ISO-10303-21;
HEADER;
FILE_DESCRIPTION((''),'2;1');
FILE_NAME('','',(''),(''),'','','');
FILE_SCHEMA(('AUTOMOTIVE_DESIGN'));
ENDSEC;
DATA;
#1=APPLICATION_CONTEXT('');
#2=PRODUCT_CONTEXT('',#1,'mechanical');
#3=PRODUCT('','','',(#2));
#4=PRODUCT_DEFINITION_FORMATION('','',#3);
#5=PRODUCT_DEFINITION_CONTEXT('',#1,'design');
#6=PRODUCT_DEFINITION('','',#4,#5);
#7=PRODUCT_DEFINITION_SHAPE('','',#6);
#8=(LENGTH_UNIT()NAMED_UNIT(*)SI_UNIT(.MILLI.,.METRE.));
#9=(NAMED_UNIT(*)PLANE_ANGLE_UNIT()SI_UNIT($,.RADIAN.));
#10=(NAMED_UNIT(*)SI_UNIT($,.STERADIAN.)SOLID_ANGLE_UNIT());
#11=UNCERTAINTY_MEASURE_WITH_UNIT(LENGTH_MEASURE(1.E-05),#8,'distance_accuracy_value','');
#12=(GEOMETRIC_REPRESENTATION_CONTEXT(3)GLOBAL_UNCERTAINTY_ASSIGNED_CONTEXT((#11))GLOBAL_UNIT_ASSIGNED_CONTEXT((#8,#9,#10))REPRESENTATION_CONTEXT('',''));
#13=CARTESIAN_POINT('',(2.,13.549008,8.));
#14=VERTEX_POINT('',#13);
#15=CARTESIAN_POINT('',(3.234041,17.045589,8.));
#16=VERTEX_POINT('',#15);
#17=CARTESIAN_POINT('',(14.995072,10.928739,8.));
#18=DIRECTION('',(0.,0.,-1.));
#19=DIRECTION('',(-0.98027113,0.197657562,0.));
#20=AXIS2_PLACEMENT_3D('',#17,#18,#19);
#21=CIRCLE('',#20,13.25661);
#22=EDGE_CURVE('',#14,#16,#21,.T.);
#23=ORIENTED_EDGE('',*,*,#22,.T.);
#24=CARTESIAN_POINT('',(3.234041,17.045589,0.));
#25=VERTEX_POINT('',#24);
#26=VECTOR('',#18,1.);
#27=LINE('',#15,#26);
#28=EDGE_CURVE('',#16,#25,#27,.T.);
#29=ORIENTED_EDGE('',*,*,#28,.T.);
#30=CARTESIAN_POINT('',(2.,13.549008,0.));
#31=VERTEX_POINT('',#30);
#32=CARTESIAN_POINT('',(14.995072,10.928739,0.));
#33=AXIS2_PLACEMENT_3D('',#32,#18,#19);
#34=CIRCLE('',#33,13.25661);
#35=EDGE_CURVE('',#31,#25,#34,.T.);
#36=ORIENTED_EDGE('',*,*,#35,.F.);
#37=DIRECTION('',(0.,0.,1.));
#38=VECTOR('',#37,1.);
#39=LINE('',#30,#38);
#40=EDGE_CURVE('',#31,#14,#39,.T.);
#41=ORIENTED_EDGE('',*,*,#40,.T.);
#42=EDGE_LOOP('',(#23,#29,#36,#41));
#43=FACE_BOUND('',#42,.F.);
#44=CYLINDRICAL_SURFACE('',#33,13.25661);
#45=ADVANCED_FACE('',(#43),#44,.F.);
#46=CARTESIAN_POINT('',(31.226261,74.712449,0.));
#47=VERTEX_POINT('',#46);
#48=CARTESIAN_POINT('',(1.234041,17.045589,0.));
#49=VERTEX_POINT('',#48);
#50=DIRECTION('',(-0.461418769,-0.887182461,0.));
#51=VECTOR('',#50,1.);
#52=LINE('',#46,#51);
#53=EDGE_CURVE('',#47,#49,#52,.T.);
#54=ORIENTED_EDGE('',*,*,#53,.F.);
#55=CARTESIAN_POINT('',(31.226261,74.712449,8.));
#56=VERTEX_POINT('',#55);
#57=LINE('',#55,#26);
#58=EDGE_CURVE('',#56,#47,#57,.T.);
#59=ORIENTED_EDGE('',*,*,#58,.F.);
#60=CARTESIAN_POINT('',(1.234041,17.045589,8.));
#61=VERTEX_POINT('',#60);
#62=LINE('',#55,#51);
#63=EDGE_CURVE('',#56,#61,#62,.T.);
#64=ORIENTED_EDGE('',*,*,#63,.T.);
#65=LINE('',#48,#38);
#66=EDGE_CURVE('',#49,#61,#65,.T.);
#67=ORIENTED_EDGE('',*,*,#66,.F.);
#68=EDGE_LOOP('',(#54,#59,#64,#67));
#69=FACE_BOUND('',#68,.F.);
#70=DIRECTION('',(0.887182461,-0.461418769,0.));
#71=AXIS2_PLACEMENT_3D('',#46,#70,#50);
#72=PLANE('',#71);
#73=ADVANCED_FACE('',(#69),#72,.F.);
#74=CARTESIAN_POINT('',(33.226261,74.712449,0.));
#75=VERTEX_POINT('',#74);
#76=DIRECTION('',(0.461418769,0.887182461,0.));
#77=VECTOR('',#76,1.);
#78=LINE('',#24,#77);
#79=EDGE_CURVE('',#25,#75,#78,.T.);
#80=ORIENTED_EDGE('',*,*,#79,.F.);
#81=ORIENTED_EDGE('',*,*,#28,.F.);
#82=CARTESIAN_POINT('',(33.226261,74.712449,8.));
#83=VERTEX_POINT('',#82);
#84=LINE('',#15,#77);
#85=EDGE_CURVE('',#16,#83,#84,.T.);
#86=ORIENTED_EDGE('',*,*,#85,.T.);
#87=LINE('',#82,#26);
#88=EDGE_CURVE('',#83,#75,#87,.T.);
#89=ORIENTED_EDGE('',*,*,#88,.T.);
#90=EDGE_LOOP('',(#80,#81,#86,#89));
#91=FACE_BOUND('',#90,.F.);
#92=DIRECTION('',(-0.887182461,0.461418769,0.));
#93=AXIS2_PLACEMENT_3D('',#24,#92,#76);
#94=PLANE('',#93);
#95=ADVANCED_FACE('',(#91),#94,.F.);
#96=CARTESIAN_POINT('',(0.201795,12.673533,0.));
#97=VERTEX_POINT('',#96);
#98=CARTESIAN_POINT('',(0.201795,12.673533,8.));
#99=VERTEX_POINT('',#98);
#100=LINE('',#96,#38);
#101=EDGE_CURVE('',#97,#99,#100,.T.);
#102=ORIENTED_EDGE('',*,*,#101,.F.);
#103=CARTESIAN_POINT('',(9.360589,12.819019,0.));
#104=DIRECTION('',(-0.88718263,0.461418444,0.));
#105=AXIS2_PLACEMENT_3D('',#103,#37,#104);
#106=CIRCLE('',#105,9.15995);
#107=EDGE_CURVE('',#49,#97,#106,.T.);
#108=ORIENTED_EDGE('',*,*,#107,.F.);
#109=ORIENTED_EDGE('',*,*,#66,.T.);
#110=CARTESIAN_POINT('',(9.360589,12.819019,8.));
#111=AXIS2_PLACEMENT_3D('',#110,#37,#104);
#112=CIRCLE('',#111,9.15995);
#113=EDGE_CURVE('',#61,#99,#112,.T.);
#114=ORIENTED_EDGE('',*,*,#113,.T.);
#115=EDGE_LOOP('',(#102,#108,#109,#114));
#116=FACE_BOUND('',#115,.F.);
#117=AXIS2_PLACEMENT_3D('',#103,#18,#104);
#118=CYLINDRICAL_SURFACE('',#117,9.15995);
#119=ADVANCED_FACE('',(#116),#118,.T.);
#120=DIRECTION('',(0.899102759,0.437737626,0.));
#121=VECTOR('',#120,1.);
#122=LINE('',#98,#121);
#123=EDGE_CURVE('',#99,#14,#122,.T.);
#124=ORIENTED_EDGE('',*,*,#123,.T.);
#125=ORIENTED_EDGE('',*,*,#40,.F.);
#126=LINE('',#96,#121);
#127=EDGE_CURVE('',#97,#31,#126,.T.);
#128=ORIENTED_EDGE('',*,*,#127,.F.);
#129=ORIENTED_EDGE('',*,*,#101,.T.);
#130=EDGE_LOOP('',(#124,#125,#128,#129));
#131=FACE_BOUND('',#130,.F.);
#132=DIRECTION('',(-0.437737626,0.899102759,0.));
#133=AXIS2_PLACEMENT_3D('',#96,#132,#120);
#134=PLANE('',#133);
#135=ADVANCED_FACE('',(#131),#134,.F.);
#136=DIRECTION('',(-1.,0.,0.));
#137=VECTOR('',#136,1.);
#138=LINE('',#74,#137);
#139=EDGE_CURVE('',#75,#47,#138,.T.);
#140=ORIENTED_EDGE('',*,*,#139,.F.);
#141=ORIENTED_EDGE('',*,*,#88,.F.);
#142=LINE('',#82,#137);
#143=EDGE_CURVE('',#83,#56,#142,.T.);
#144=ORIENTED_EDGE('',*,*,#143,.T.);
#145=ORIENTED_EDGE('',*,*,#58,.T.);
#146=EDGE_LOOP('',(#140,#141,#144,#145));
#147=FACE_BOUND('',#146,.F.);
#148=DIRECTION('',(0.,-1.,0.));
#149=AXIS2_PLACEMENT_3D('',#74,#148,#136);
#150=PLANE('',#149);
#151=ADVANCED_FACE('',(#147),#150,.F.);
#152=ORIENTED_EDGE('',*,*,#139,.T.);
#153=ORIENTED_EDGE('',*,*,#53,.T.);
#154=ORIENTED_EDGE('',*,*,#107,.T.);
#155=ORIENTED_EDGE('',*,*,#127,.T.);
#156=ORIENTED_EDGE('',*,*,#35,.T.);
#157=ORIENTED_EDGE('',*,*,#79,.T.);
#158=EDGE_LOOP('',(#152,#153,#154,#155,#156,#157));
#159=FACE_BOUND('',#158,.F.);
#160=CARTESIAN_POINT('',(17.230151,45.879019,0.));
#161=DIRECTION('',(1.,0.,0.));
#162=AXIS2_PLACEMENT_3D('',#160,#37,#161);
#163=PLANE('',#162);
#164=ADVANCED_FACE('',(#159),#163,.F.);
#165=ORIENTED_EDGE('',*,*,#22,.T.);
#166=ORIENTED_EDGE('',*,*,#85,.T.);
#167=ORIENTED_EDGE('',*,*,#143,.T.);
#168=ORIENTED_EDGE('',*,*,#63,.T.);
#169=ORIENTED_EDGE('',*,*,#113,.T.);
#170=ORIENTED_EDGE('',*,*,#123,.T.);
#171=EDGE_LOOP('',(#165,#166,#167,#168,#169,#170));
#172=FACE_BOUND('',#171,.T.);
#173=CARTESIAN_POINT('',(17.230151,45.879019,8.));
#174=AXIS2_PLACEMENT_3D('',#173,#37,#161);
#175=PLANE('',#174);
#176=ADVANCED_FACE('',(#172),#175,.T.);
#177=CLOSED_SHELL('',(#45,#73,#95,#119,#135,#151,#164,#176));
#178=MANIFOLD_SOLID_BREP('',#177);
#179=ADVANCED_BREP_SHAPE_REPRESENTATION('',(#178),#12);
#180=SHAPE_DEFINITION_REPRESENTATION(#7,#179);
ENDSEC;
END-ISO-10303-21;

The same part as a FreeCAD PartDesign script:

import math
import FreeCAD as App
import Part
import Sketcher
from FreeCAD import Vector
Q = App.Units.Quantity

doc = App.newDocument("Part")
body = doc.addObject("PartDesign::Body", "Body")

# Sketch on XY plane
sketch1 = body.newObject("Sketcher::SketchObject", "Sketch")
sketch1.AttachmentSupport = (doc.getObject("XY_Plane"), [""])
sketch1.MapMode = "FlatFace"
sketch1.addGeometry(Part.LineSegment(Vector(31.226261, 74.712449, 0), Vector(1.234041, 17.045589, 0)), False)
sketch1.addGeometry(Part.ArcOfCircle(Part.Circle(Vector(9.360589, 12.819019, 0), Vector(0, 0, 1), 9.15995), math.radians(152.521325), math.radians(180.910059)), False)
sketch1.addGeometry(Part.LineSegment(Vector(0.201795, 12.673533, 0), Vector(2, 13.549008, 0)), False)
sketch1.addGeometry(Part.ArcOfCircle(Part.Circle(Vector(14.995072, 10.928739, 0), Vector(0, 0, 1), 13.25661), math.radians(152.521296), math.radians(168.599987)), False)
sketch1.addGeometry(Part.LineSegment(Vector(3.234041, 17.045589, 0), Vector(33.226261, 74.712449, 0)), False)
sketch1.addGeometry(Part.LineSegment(Vector(33.226261, 74.712449, 0), Vector(31.226261, 74.712449, 0)), False)
sketch1.addConstraint(Sketcher.Constraint("Coincident", 0, 2, 1, 1))
sketch1.addConstraint(Sketcher.Constraint("Coincident", 1, 2, 2, 1))
sketch1.addConstraint(Sketcher.Constraint("Coincident", 2, 2, 3, 2))
sketch1.addConstraint(Sketcher.Constraint("Coincident", 3, 1, 4, 1))
sketch1.addConstraint(Sketcher.Constraint("Coincident", 4, 2, 5, 1))
sketch1.addConstraint(Sketcher.Constraint("Coincident", 5, 2, 0, 1))
sketch1.addConstraint(Sketcher.Constraint("Horizontal", 5))
sketch1.addConstraint(Sketcher.Constraint("DistanceX", 5, 2, 5, 1, Q("2 mm")))
sketch1.addConstraint(Sketcher.Constraint("Distance", 0, Q("65 mm")))
sketch1.addConstraint(Sketcher.Constraint("Distance", 2, Q("1.999999 mm")))
sketch1.addConstraint(Sketcher.Constraint("Distance", 4, Q("65 mm")))
sketch1.addConstraint(Sketcher.Constraint("DistanceX", -1, 1, 2, 2, Q("2 mm")))
sketch1.addConstraint(Sketcher.Constraint("DistanceX", 0, 2, 3, 1, Q("2 mm")))
sketch1.addConstraint(Sketcher.Constraint("Radius", 1, Q("9.15995 mm")))
sketch1.addConstraint(Sketcher.Constraint("Radius", 3, Q("13.25661 mm")))
sketch1.addConstraint(Sketcher.Constraint("DistanceX", -1, 1, 1, 3, Q("9.360589 mm")))
sketch1.addConstraint(Sketcher.Constraint("DistanceY", -1, 1, 1, 3, Q("12.819019 mm")))
sketch1.addConstraint(Sketcher.Constraint("DistanceX", -1, 1, 3, 3, Q("14.995072 mm")))
sketch1.addConstraint(Sketcher.Constraint("DistanceX", -1, 1, 0, 2, Q("1.234041 mm")))
sketch1.addConstraint(Sketcher.Constraint("DistanceX", -1, 1, 4, 2, Q("33.226261 mm")))
pad1 = body.newObject("PartDesign::Pad", "Pad")
pad1.Profile = sketch1
pad1.Length = 6

# Sketch on XY plane
sketch2 = body.newObject("Sketcher::SketchObject", "Sketch001")
sketch2.AttachmentSupport = (doc.getObject("XY_Plane"), [""])
sketch2.MapMode = "FlatFace"
sketch2.addGeometry(Part.LineSegment(Vector(31.226261, 74.712449, 0), Vector(1.234041, 17.045589, 0)), False)
sketch2.addGeometry(Part.ArcOfCircle(Part.Circle(Vector(9.360589, 12.819019, 0), Vector(0, 0, 1), 9.15995), math.radians(152.521325), math.radians(180.910059)), False)
sketch2.addGeometry(Part.LineSegment(Vector(0.201795, 12.673533, 0), Vector(2, 13.549008, 0)), False)
sketch2.addGeometry(Part.ArcOfCircle(Part.Circle(Vector(14.995072, 10.928739, 0), Vector(0, 0, 1), 13.25661), math.radians(152.521296), math.radians(168.599987)), False)
sketch2.addGeometry(Part.LineSegment(Vector(3.234041, 17.045589, 0), Vector(33.226261, 74.712449, 0)), False)
sketch2.addGeometry(Part.LineSegment(Vector(33.226261, 74.712449, 0), Vector(31.226261, 74.712449, 0)), False)
sketch2.addConstraint(Sketcher.Constraint("Coincident", 0, 2, 1, 1))
sketch2.addConstraint(Sketcher.Constraint("Coincident", 1, 2, 2, 1))
sketch2.addConstraint(Sketcher.Constraint("Coincident", 2, 2, 3, 2))
sketch2.addConstraint(Sketcher.Constraint("Coincident", 3, 1, 4, 1))
sketch2.addConstraint(Sketcher.Constraint("Coincident", 4, 2, 5, 1))
sketch2.addConstraint(Sketcher.Constraint("Coincident", 5, 2, 0, 1))
sketch2.addConstraint(Sketcher.Constraint("Horizontal", 5))
sketch2.addConstraint(Sketcher.Constraint("DistanceX", 5, 2, 5, 1, Q("2 mm")))
sketch2.addConstraint(Sketcher.Constraint("Distance", 0, Q("65 mm")))
sketch2.addConstraint(Sketcher.Constraint("Distance", 2, Q("1.999999 mm")))
sketch2.addConstraint(Sketcher.Constraint("Distance", 4, Q("65 mm")))
sketch2.addConstraint(Sketcher.Constraint("DistanceX", -1, 1, 2, 2, Q("2 mm")))
sketch2.addConstraint(Sketcher.Constraint("DistanceX", 0, 2, 3, 1, Q("2 mm")))
sketch2.addConstraint(Sketcher.Constraint("Radius", 1, Q("9.15995 mm")))
sketch2.addConstraint(Sketcher.Constraint("Radius", 3, Q("13.25661 mm")))
sketch2.addConstraint(Sketcher.Constraint("DistanceX", -1, 1, 1, 3, Q("9.360589 mm")))
sketch2.addConstraint(Sketcher.Constraint("DistanceY", -1, 1, 1, 3, Q("12.819019 mm")))
sketch2.addConstraint(Sketcher.Constraint("DistanceX", -1, 1, 3, 3, Q("14.995072 mm")))
sketch2.addConstraint(Sketcher.Constraint("DistanceX", -1, 1, 0, 2, Q("1.234041 mm")))
sketch2.addConstraint(Sketcher.Constraint("DistanceX", -1, 1, 4, 2, Q("33.226261 mm")))
pad2 = body.newObject("PartDesign::Pad", "Pad001")
pad2.Profile = sketch2
pad2.Length = 8

doc.recompute()
